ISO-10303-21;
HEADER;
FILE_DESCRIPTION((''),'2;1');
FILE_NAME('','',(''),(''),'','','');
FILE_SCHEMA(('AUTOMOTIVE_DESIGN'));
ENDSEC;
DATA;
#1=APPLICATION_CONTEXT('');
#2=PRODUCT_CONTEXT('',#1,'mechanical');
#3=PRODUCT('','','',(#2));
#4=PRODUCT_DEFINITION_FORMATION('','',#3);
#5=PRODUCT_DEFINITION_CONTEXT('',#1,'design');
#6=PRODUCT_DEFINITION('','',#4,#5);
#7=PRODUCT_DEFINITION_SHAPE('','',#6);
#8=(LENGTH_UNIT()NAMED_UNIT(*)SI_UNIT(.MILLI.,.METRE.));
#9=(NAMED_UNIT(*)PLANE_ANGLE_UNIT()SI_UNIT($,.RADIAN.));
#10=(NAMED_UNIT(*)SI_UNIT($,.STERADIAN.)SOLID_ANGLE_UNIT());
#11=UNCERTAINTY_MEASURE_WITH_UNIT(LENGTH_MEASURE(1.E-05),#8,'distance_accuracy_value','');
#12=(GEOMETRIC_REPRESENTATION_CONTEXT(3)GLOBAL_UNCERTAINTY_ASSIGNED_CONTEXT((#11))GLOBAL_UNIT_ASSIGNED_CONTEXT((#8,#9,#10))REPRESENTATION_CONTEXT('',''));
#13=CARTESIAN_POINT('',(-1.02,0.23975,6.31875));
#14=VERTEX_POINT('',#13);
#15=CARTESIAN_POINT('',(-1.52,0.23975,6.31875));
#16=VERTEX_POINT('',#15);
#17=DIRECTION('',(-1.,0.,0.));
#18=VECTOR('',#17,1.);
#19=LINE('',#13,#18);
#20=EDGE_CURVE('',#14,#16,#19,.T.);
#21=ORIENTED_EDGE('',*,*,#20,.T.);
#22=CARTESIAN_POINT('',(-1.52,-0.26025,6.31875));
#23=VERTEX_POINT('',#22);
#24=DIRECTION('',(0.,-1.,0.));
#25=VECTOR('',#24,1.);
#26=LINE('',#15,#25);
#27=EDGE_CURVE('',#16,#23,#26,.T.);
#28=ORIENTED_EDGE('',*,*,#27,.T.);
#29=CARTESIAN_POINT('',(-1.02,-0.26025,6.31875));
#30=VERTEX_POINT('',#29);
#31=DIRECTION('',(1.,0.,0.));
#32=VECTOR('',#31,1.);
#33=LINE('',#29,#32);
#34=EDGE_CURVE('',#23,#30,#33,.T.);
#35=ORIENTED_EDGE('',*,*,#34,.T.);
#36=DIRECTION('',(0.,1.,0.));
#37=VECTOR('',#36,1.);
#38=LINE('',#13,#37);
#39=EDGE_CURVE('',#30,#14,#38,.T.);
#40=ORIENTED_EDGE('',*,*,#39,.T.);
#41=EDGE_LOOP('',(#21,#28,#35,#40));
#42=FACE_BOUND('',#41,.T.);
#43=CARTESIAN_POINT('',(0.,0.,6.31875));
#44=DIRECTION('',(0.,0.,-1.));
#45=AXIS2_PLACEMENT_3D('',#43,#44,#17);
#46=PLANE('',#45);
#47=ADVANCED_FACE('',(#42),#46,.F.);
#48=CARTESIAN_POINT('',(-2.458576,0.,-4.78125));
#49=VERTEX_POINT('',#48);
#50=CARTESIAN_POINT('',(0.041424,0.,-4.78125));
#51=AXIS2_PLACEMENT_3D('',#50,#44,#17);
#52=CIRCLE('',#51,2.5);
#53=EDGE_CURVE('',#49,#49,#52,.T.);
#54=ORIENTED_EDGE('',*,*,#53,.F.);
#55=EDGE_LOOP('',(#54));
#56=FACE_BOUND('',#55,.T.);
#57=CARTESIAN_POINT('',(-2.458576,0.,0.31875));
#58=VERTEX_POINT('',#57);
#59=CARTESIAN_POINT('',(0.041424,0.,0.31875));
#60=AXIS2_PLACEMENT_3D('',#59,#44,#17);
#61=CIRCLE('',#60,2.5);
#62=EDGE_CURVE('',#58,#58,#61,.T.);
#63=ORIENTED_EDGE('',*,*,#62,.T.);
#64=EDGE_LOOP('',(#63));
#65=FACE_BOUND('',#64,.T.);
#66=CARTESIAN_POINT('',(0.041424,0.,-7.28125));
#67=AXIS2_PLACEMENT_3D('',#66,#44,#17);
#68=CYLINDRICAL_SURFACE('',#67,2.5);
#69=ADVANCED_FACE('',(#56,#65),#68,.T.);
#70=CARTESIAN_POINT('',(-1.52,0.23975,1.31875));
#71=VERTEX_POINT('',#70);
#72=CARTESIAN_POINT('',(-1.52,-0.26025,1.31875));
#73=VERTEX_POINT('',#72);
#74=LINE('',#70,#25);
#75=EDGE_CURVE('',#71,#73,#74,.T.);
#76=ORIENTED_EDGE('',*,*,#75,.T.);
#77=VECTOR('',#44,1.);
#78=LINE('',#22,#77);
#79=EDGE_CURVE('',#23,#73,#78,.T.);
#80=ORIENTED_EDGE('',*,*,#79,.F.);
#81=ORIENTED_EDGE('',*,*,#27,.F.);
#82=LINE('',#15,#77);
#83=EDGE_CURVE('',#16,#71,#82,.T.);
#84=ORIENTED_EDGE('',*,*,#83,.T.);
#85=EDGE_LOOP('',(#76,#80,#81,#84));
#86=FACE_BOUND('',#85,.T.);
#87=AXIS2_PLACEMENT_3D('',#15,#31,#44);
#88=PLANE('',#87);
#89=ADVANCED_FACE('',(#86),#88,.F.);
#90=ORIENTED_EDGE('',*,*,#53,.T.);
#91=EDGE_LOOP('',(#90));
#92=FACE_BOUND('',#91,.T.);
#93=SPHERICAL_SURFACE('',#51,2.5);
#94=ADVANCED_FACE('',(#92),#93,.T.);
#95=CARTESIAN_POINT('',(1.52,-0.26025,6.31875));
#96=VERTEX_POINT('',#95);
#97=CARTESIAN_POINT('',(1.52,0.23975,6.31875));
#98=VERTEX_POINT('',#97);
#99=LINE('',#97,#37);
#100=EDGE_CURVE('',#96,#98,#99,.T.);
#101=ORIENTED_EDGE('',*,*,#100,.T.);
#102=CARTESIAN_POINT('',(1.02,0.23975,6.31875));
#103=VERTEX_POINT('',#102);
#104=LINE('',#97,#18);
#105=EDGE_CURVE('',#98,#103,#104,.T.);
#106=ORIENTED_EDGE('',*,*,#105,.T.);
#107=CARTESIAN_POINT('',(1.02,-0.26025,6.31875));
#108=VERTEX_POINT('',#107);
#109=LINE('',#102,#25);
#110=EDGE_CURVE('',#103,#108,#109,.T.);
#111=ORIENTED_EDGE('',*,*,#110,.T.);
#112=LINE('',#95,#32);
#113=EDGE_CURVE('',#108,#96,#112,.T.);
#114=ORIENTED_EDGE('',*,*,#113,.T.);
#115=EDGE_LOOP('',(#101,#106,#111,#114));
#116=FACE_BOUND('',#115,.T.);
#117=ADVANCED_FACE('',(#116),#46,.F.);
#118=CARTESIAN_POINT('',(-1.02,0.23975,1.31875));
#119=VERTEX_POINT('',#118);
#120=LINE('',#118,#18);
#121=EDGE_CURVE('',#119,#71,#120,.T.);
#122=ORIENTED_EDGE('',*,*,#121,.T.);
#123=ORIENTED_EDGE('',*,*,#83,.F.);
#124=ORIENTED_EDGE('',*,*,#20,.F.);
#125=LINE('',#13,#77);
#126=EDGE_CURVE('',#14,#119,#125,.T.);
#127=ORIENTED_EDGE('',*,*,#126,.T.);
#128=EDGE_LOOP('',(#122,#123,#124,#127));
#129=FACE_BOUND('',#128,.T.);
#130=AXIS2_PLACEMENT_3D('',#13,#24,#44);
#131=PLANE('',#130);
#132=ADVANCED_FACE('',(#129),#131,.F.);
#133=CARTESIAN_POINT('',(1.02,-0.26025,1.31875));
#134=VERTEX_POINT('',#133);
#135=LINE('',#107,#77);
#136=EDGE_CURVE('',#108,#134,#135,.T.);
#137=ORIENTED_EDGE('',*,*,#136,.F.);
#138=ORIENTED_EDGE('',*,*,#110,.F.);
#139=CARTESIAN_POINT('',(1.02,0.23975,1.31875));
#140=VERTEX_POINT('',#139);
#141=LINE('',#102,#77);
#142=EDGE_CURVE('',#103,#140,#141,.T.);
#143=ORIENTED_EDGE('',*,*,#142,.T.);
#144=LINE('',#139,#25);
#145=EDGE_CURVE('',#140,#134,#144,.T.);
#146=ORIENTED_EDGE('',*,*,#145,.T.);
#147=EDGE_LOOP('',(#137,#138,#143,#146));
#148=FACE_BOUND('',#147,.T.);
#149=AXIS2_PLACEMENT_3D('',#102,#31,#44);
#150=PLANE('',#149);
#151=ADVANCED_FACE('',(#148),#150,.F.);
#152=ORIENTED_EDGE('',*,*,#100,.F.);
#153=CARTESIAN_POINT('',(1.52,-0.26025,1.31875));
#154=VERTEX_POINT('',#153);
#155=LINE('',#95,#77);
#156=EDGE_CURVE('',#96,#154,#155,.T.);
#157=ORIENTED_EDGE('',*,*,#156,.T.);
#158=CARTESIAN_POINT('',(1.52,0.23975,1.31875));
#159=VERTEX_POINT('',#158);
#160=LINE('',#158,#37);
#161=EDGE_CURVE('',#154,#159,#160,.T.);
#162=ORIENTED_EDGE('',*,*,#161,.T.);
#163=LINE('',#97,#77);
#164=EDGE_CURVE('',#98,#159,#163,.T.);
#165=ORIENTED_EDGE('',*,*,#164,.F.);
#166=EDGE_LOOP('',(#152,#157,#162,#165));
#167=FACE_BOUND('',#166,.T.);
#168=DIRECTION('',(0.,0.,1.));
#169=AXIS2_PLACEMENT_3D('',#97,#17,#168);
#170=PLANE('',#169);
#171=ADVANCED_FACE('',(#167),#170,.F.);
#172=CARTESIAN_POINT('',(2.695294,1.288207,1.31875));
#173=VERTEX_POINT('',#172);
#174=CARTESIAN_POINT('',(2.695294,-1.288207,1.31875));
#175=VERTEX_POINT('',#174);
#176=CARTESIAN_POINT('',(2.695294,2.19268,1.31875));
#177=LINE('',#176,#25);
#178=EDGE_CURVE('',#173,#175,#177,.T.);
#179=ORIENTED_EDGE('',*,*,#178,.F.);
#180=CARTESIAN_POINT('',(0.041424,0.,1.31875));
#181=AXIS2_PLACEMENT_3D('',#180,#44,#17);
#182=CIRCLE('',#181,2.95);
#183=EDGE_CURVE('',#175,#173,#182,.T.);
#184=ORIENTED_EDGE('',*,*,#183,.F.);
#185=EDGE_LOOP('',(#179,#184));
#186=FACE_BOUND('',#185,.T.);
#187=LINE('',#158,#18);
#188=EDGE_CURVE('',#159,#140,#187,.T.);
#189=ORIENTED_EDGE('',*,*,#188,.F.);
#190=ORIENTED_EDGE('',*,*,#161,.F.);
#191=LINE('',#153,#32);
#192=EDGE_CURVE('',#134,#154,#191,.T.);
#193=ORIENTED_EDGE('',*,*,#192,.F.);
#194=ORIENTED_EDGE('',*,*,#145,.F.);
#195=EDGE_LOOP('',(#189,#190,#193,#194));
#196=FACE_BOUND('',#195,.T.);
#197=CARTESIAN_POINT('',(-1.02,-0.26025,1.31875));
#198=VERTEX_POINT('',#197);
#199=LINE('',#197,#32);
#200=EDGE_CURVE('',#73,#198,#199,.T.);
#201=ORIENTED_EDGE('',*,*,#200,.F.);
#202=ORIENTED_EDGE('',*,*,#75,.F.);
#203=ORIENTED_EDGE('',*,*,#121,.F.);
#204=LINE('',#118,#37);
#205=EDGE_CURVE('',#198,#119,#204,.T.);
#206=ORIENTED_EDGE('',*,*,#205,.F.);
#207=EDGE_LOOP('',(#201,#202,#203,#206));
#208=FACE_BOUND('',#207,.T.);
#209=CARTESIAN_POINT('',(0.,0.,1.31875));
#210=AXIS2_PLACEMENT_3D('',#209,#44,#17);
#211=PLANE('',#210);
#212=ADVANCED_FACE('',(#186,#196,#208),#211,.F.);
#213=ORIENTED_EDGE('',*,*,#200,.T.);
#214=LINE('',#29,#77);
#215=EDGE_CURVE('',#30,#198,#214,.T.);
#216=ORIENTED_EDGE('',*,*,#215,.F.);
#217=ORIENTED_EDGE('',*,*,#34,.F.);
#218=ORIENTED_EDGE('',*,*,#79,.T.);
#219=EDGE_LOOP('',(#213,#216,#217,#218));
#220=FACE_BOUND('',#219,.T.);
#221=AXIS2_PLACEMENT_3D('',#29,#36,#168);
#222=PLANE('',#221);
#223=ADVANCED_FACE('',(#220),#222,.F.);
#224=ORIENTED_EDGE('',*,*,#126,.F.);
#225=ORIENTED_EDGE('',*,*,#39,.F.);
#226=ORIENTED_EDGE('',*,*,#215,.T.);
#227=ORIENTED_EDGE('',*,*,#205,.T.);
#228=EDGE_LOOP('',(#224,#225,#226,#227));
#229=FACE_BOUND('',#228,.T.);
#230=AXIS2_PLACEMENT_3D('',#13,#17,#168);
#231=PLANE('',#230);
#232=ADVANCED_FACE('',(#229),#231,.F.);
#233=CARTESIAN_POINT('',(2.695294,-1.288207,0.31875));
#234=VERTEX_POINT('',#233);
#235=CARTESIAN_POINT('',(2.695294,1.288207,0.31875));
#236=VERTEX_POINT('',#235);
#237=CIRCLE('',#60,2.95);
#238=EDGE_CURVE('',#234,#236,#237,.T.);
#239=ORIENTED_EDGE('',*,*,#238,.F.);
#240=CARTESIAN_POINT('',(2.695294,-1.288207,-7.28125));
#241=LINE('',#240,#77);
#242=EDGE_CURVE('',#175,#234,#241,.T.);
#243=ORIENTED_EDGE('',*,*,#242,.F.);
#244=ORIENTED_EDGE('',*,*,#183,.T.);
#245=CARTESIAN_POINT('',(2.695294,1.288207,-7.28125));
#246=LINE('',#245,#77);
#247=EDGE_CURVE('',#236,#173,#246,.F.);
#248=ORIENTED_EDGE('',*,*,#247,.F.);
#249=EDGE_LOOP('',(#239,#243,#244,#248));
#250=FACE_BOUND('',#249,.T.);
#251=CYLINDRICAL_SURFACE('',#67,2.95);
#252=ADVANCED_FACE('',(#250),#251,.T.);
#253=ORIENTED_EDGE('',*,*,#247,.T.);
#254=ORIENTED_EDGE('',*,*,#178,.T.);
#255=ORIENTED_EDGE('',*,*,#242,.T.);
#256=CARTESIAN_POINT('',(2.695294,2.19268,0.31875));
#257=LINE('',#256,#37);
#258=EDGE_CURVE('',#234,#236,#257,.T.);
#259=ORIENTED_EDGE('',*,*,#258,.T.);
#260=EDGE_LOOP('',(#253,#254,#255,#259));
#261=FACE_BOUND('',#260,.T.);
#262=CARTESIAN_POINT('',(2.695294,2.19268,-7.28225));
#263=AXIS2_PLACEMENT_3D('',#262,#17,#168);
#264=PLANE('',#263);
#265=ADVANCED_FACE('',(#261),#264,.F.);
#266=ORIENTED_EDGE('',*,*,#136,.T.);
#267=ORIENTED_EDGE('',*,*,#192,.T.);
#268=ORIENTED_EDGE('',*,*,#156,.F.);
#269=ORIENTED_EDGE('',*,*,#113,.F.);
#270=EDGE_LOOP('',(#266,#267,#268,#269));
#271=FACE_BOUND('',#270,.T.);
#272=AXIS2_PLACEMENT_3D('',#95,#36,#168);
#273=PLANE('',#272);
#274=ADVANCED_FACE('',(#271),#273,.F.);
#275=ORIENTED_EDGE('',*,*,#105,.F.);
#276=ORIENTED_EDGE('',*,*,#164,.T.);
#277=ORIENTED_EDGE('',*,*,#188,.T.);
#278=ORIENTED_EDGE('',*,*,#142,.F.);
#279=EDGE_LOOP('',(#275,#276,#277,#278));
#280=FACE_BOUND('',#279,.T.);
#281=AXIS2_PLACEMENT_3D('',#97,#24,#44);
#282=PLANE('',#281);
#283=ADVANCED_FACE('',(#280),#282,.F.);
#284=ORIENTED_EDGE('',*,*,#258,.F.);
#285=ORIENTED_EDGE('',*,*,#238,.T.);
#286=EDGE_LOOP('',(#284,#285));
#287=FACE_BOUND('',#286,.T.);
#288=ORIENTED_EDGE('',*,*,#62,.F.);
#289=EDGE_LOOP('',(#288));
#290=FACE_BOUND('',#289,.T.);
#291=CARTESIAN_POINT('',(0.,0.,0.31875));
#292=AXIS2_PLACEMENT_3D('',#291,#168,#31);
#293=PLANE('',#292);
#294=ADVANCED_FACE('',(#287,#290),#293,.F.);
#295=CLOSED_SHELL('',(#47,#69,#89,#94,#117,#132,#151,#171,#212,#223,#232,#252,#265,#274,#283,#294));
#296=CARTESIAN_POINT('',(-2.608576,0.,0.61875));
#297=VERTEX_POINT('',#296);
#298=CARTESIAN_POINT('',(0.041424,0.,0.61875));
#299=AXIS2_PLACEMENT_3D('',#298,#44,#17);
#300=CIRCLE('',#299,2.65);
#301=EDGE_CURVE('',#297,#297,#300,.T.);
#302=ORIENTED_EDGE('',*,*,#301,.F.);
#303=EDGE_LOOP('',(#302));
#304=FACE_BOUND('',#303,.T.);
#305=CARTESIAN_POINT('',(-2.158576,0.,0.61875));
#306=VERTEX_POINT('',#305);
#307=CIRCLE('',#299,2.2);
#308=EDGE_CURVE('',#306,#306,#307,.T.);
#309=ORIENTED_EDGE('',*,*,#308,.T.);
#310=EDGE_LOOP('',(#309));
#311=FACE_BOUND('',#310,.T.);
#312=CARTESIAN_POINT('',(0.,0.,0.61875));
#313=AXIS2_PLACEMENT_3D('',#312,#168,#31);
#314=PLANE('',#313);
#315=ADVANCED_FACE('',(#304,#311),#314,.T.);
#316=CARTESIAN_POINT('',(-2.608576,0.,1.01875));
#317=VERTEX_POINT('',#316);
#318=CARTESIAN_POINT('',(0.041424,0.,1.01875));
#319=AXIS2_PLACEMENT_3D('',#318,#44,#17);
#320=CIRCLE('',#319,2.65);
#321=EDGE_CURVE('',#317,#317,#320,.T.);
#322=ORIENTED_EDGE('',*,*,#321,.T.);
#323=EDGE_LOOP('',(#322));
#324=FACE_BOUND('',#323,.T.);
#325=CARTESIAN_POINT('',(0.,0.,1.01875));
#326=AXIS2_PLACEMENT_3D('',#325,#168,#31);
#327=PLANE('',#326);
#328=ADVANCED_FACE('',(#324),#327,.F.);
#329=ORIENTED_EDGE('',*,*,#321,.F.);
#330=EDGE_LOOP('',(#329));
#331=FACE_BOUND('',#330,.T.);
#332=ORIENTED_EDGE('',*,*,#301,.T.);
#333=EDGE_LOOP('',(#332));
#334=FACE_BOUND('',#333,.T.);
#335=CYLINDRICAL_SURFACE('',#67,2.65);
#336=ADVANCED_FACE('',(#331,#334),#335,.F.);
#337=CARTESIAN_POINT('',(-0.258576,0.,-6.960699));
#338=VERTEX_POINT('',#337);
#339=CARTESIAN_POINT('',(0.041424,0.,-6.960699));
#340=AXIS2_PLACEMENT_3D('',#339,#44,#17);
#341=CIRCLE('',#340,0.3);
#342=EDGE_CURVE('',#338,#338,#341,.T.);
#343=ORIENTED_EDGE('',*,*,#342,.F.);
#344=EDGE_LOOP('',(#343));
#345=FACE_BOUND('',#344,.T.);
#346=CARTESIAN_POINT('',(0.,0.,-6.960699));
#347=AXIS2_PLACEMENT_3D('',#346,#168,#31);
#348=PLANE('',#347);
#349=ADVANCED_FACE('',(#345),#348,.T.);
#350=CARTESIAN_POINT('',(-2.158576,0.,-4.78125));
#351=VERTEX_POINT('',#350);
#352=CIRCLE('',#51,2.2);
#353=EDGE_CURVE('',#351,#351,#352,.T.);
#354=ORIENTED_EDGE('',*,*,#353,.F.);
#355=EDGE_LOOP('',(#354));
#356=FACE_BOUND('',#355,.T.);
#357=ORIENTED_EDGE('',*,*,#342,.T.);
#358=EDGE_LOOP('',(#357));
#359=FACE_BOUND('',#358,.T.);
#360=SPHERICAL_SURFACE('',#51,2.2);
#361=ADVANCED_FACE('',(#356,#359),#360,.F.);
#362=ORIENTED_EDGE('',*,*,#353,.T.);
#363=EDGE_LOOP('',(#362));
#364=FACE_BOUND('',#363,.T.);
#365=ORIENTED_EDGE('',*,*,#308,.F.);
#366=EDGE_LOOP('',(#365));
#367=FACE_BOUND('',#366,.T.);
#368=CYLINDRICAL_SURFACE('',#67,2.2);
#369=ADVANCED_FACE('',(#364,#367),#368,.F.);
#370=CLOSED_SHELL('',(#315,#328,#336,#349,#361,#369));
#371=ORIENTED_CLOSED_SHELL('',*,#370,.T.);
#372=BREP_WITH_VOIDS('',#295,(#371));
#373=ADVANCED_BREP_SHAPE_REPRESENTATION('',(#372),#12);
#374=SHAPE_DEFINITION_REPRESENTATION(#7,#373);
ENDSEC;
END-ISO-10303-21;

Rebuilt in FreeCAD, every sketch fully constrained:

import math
import FreeCAD as App
import Part
import Sketcher
from FreeCAD import Vector

doc = App.newDocument("Part")
body = doc.addObject("PartDesign::Body", "Body")

sketch1 = body.newObject("Sketcher::SketchObject", "Sketch")
sketch1.AttachmentSupport = (doc.getObject("XZ_Plane"), [""])
sketch1.MapMode = "FlatFace"
sketch1.addGeometry(Part.LineSegment(Vector(-2.908576, 1.31875, 0), Vector(0.041424, 1.31875, 0)), False)
sketch1.addGeometry(Part.LineSegment(Vector(0.041424, 1.31875, 0), Vector(0.041424, 1.01875, 0)), False)
sketch1.addGeometry(Part.LineSegment(Vector(0.041424, 1.01875, 0), Vector(-2.608576, 1.01875, 0)), False)
sketch1.addGeometry(Part.LineSegment(Vector(-2.608576, 1.01875, 0), Vector(-2.608576, 0.61875, 0)), False)
sketch1.addGeometry(Part.LineSegment(Vector(-2.608576, 0.61875, 0), Vector(-2.158576, 0.61875, 0)), False)
sketch1.addGeometry(Part.LineSegment(Vector(-2.158576, 0.61875, 0), Vector(-2.158576, -4.78125, 0)), False)
sketch1.addGeometry(Part.ArcOfCircle(Part.Circle(Vector(0.041424, -4.78125, 0), Vector(0, 0, 1), 2.2), math.radians(180), math.radians(262.16252)), False)
sketch1.addGeometry(Part.LineSegment(Vector(-0.258576, -6.960699, 0), Vector(0.041424, -6.960699, 0)), False)
sketch1.addGeometry(Part.LineSegment(Vector(0.041424, -6.960699, 0), Vector(0.041424, -7.28125, 0)), False)
sketch1.addGeometry(Part.ArcOfCircle(Part.Circle(Vector(0.041424, -4.78125, 0), Vector(0, 0, 1), 2.5), math.radians(180), math.radians(270)), False)
sketch1.addGeometry(Part.LineSegment(Vector(-2.458576, -4.78125, 0), Vector(-2.458576, 0.31875, 0)), False)
sketch1.addGeometry(Part.LineSegment(Vector(-2.458576, 0.31875, 0), Vector(-2.908576, 0.31875, 0)), False)
sketch1.addGeometry(Part.LineSegment(Vector(-2.908576, 0.31875, 0), Vector(-2.908576, 1.31875, 0)), False)
sketch1.addGeometry(Part.LineSegment(Vector(0.041424, -7.28125, 0), Vector(0.041424, 1.31875, 0)), True)
sketch1.addConstraint(Sketcher.Constraint("Coincident", 0, 2, 1, 1))
sketch1.addConstraint(Sketcher.Constraint("Coincident", 1, 2, 2, 1))
sketch1.addConstraint(Sketcher.Constraint("Coincident", 2, 2, 3, 1))
sketch1.addConstraint(Sketcher.Constraint("Coincident", 3, 2, 4, 1))
sketch1.addConstraint(Sketcher.Constraint("Coincident", 4, 2, 5, 1))
sketch1.addConstraint(Sketcher.Constraint("Tangent", 5, 2, 6, 1))
sketch1.addConstraint(Sketcher.Constraint("Coincident", 6, 2, 7, 1))
sketch1.addConstraint(Sketcher.Constraint("Coincident", 7, 2, 8, 1))
sketch1.addConstraint(Sketcher.Constraint("Coincident", 8, 2, 9, 2))
sketch1.addConstraint(Sketcher.Constraint("Tangent", 9, 1, 10, 1))
sketch1.addConstraint(Sketcher.Constraint("Coincident", 10, 2, 11, 1))
sketch1.addConstraint(Sketcher.Constraint("Coincident", 11, 2, 12, 1))
sketch1.addConstraint(Sketcher.Constraint("Coincident", 12, 2, 0, 1))
sketch1.addConstraint(Sketcher.Constraint("Horizontal", 0))
sketch1.addConstraint(Sketcher.Constraint("Vertical", 1))
sketch1.addConstraint(Sketcher.Constraint("Horizontal", 2))
sketch1.addConstraint(Sketcher.Constraint("Vertical", 3))
sketch1.addConstraint(Sketcher.Constraint("Horizontal", 4))
sketch1.addConstraint(Sketcher.Constraint("Vertical", 5))
sketch1.addConstraint(Sketcher.Constraint("Horizontal", 7))
sketch1.addConstraint(Sketcher.Constraint("Vertical", 8))
sketch1.addConstraint(Sketcher.Constraint("Vertical", 10))
sketch1.addConstraint(Sketcher.Constraint("Horizontal", 11))
sketch1.addConstraint(Sketcher.Constraint("Vertical", 12))
sketch1.addConstraint(Sketcher.Constraint("Vertical", 13))
sketch1.addConstraint(Sketcher.Constraint("Coincident", 9, 3, 6, 3))
sketch1.addConstraint(Sketcher.Constraint("Coincident", 13, 1, 8, 2))
sketch1.addConstraint(Sketcher.Constraint("Coincident", 13, 2, 0, 2))
sketch1.addConstraint(Sketcher.Constraint("Vertical", 9, 3, 0, 2))
sketch1.addConstraint(Sketcher.Constraint("Equal", 4, 11))
sketch1.addConstraint(Sketcher.Constraint("Equal", 7, 1))
sketch1.addConstraint(Sketcher.Constraint("Radius", 6, 2.2))
sketch1.addConstraint(Sketcher.Constraint("Radius", 9, 2.5))
sketch1.addConstraint(Sketcher.Constraint("DistanceY", 12, 1, 12, 2, 1.0))
sketch1.addConstraint(Sketcher.Constraint("DistanceX", 7, 1, 7, 2, 0.3))
sketch1.addConstraint(Sketcher.Constraint("DistanceY", 3, 2, 3, 1, 0.4))
sketch1.addConstraint(Sketcher.Constraint("DistanceY", 5, 2, 5, 1, 5.4))
sketch1.addConstraint(Sketcher.Constraint("DistanceX", 0, 1, 0, 2, 2.95))
sketch1.addConstraint(Sketcher.Constraint("DistanceY", 6, 2, -1, 1, 6.960699))
sketch1.addConstraint(Sketcher.Constraint("DistanceX", -1, 1, 6, 3, 0.041424))
revolution = body.newObject("PartDesign::Revolution", "Revolution")
revolution.Profile = sketch1
revolution.ReferenceAxis = (sketch1, ["Axis0"])
revolution.Angle = 360

sketch2 = body.newObject("Sketcher::SketchObject", "Sketch001")
sketch2.AttachmentSupport = (doc.getObject("XY_Plane"), [""])
sketch2.MapMode = "FlatFace"
sketch2.AttachmentOffset = App.Placement(Vector(0, 0, 1.31875), App.Rotation())
sketch2.addGeometry(Part.LineSegment(Vector(1.02, 0.23975, 0), Vector(1.02, -0.26025, 0)), False)
sketch2.addGeometry(Part.LineSegment(Vector(1.02, -0.26025, 0), Vector(1.52, -0.26025, 0)), False)
sketch2.addGeometry(Part.LineSegment(Vector(1.52, -0.26025, 0), Vector(1.52, 0.23975, 0)), False)
sketch2.addGeometry(Part.LineSegment(Vector(1.52, 0.23975, 0), Vector(1.02, 0.23975, 0)), False)
sketch2.addGeometry(Part.LineSegment(Vector(-1.52, 0.23975, 0), Vector(-1.52, -0.26025, 0)), False)
sketch2.addGeometry(Part.LineSegment(Vector(-1.52, -0.26025, 0), Vector(-1.02, -0.26025, 0)), False)
sketch2.addGeometry(Part.LineSegment(Vector(-1.02, -0.26025, 0), Vector(-1.02, 0.23975, 0)), False)
sketch2.addGeometry(Part.LineSegment(Vector(-1.02, 0.23975, 0), Vector(-1.52, 0.23975, 0)), False)
sketch2.addConstraint(Sketcher.Constraint("Coincident", 0, 2, 1, 1))
sketch2.addConstraint(Sketcher.Constraint("Coincident", 1, 2, 2, 1))
sketch2.addConstraint(Sketcher.Constraint("Coincident", 2, 2, 3, 1))
sketch2.addConstraint(Sketcher.Constraint("Coincident", 3, 2, 0, 1))
sketch2.addConstraint(Sketcher.Constraint("Coincident", 4, 2, 5, 1))
sketch2.addConstraint(Sketcher.Constraint("Coincident", 5, 2, 6, 1))
sketch2.addConstraint(Sketcher.Constraint("Coincident", 6, 2, 7, 1))
sketch2.addConstraint(Sketcher.Constraint("Coincident", 7, 2, 4, 1))
sketch2.addConstraint(Sketcher.Constraint("Vertical", 0))
sketch2.addConstraint(Sketcher.Constraint("Horizontal", 1))
sketch2.addConstraint(Sketcher.Constraint("Vertical", 2))
sketch2.addConstraint(Sketcher.Constraint("Horizontal", 3))
sketch2.addConstraint(Sketcher.Constraint("Vertical", 4))
sketch2.addConstraint(Sketcher.Constraint("Horizontal", 5))
sketch2.addConstraint(Sketcher.Constraint("Vertical", 6))
sketch2.addConstraint(Sketcher.Constraint("Horizontal", 7))
sketch2.addConstraint(Sketcher.Constraint("Symmetric", 1, 2, 4, 2, -2))
sketch2.addConstraint(Sketcher.Constraint("Symmetric", 3, 2, 6, 2, -2))
sketch2.addConstraint(Sketcher.Constraint("Equal", 7, 0))
sketch2.addConstraint(Sketcher.Constraint("DistanceX", 1, 1, 1, 2, 0.5))
sketch2.addConstraint(Sketcher.Constraint("DistanceX", -1, 1, 0, 2, 1.02))
sketch2.addConstraint(Sketcher.Constraint("DistanceY", 0, 2, -1, 1, 0.26025))
pad1 = body.newObject("PartDesign::Pad", "Pad")
pad1.Profile = sketch2
pad1.Length = 5

sketch3 = body.newObject("Sketcher::SketchObject", "Sketch002")
sketch3.AttachmentSupport = (doc.getObject("XY_Plane"), [""])
sketch3.MapMode = "FlatFace"
sketch3.AttachmentOffset = App.Placement(Vector(0, 0, 1.31875), App.Rotation())
sketch3.addGeometry(Part.LineSegment(Vector(2.695294, 2.19268, 0), Vector(2.695294, -2.268879, 0)), False)
sketch3.addGeometry(Part.LineSegment(Vector(2.695294, -2.268879, 0), Vector(4.314878, -2.502381, 0)), False)
sketch3.addGeometry(Part.LineSegment(Vector(4.314878, -2.502381, 0), Vector(4.180552, 2.299424, 0)), False)
sketch3.addGeometry(Part.LineSegment(Vector(4.180552, 2.299424, 0), Vector(2.695294, 2.19268, 0)), False)
sketch3.addConstraint(Sketcher.Constraint("Coincident", 0, 2, 1, 1))
sketch3.addConstraint(Sketcher.Constraint("Coincident", 1, 2, 2, 1))
sketch3.addConstraint(Sketcher.Constraint("Coincident", 2, 2, 3, 1))
sketch3.addConstraint(Sketcher.Constraint("Coincident", 3, 2, 0, 1))
sketch3.addConstraint(Sketcher.Constraint("Vertical", 0))
sketch3.addConstraint(Sketcher.Constraint("DistanceY", 0, 2, 0, 1, 4.461559))
sketch3.addConstraint(Sketcher.Constraint("Distance", 1, 1.63633))
sketch3.addConstraint(Sketcher.Constraint("Distance", 3, 1.489089))
sketch3.addConstraint(Sketcher.Constraint("DistanceY", 0, 2, -1, 1, 2.268879))
sketch3.addConstraint(Sketcher.Constraint("DistanceX", -1, 1, 1, 2, 4.314878))
sketch3.addConstraint(Sketcher.Constraint("DistanceY", 1, 2, -1, 1, 2.502381))
sketch3.addConstraint(Sketcher.Constraint("DistanceX", -1, 1, 2, 2, 4.180552))
pocket1 = body.newObject("PartDesign::Pocket", "Pocket")
pocket1.Profile = sketch3
pocket1.Length = 1

doc.recompute()
